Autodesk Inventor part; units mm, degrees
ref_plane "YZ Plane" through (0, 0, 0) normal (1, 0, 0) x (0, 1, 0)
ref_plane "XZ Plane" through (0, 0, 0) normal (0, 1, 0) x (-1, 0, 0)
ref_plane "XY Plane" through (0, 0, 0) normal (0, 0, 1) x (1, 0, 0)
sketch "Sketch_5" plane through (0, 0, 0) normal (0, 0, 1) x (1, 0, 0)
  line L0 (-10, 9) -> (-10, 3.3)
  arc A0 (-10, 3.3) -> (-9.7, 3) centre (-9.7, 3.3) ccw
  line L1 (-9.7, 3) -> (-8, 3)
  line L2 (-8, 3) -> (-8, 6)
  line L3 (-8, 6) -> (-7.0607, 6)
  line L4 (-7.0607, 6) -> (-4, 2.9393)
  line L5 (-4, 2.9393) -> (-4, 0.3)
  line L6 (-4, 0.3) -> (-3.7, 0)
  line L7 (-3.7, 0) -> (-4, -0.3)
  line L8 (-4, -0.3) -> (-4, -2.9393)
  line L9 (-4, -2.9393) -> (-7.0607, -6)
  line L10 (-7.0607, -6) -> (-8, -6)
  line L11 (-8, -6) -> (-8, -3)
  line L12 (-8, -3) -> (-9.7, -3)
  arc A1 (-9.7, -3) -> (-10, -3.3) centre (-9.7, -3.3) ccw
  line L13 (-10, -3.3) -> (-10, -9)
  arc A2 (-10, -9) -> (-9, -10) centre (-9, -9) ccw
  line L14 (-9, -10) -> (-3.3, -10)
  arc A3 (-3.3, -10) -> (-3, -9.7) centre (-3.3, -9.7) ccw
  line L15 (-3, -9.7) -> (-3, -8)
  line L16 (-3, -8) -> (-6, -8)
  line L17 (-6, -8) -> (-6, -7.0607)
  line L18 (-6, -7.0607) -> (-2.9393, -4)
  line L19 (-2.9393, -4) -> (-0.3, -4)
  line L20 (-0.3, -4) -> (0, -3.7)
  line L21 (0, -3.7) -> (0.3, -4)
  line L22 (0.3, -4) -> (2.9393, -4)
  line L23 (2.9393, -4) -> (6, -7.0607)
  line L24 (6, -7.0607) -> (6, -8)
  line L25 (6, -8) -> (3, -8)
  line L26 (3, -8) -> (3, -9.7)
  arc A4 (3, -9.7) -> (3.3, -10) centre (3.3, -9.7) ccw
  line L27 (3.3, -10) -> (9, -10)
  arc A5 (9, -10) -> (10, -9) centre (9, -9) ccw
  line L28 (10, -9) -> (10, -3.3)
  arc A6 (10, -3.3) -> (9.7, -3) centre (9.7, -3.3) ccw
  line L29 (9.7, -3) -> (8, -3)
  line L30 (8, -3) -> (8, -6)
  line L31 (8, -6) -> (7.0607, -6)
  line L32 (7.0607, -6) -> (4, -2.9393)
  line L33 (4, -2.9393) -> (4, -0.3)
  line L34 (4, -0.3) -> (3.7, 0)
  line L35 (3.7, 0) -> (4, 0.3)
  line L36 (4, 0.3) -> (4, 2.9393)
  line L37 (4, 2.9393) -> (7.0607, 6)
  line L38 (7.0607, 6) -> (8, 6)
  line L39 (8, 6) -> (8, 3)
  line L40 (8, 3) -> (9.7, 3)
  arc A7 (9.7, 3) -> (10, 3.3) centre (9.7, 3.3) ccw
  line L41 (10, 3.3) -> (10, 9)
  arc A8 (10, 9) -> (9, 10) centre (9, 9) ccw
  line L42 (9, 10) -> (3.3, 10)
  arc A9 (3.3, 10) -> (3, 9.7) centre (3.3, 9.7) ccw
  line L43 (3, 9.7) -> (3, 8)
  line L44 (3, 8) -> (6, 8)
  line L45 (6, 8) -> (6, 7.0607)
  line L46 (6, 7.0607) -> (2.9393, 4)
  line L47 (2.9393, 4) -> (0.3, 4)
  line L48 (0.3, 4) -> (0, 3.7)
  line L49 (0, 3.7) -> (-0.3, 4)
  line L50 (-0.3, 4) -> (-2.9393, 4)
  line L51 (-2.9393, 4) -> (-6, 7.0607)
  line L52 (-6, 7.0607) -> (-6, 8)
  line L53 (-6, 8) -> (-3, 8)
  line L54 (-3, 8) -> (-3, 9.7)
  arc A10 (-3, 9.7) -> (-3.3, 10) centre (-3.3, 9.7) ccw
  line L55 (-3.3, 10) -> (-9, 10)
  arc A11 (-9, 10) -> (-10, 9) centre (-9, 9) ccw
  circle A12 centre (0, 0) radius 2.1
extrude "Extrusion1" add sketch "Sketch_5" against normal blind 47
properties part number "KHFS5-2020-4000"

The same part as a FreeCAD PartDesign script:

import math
import FreeCAD as App
import Part
import Sketcher

V = App.Vector

doc = App.newDocument("Part")
params = doc.addObject("Spreadsheet::Sheet", "Params")
for row, (alias, value) in enumerate([
    ("sketch1_radius", "1 mm"),
    ("sketch1_diameter", "4.2 mm"),
    ("sketch1_radius2", "0.3 mm"),
    ("sketch1_width", "3 mm"),
    ("sketch1_width2", "1.7 mm"),
    ("pad1_length", "47 mm"),
], start=1):
    params.set(f"A{row}", alias)
    params.set(f"B{row}", "=" + value)
    params.setAlias(f"B{row}", alias)

body = doc.addObject("PartDesign::Body", "Body")

sketch1 = body.newObject("Sketcher::SketchObject", "Sketch")
sketch1.AttachmentSupport = (doc.getObject("XY_Plane"), [""])
sketch1.MapMode = "FlatFace"
sketch1.addGeometry([
    Part.ArcOfCircle(Part.Circle(V(-9, 9, 0), V(0, 0, 1), 1), math.radians(90), math.radians(180)),
    Part.LineSegment(V(-10, 9, 0), V(-10, 3.3, 0)),
    Part.ArcOfCircle(Part.Circle(V(-9.7, 3.3, 0), V(0, 0, 1), 0.3), math.radians(180), math.radians(270)),
    Part.LineSegment(V(-9.7, 3, 0), V(-8, 3, 0)),
    Part.LineSegment(V(-8, 3, 0), V(-8, 6, 0)),
    Part.LineSegment(V(-8, 6, 0), V(-7.06, 6, 0)),
    Part.LineSegment(V(-7.06, 6, 0), V(-4, 2.94, 0)),
    Part.LineSegment(V(-4, 2.94, 0), V(-4, 0.3, 0)),
    Part.LineSegment(V(-4, 0.3, 0), V(-3.7, 0, 0)),
    Part.LineSegment(V(-3.7, 0, 0), V(-4, -0.3, 0)),
    Part.LineSegment(V(-4, -0.3, 0), V(-4, -2.94, 0)),
    Part.LineSegment(V(-4, -2.94, 0), V(-7.06, -6, 0)),
    Part.LineSegment(V(-7.06, -6, 0), V(-8, -6, 0)),
    Part.LineSegment(V(-8, -6, 0), V(-8, -3, 0)),
    Part.LineSegment(V(-8, -3, 0), V(-9.7, -3, 0)),
    Part.ArcOfCircle(Part.Circle(V(-9.7, -3.3, 0), V(0, 0, 1), 0.3), math.radians(90), math.radians(180)),
    Part.LineSegment(V(-10, -3.3, 0), V(-10, -9, 0)),
    Part.ArcOfCircle(Part.Circle(V(-9, -9, 0), V(0, 0, 1), 1), math.radians(180), math.radians(270)),
    Part.LineSegment(V(-9, -10, 0), V(-3.3, -10, 0)),
    Part.ArcOfCircle(Part.Circle(V(-3.3, -9.7, 0), V(0, 0, 1), 0.3), math.radians(-90), math.radians(0)),
    Part.LineSegment(V(-3, -9.7, 0), V(-3, -8, 0)),
    Part.LineSegment(V(-3, -8, 0), V(-6, -8, 0)),
    Part.LineSegment(V(-6, -8, 0), V(-6, -7.06, 0)),
    Part.LineSegment(V(-6, -7.06, 0), V(-2.94, -4, 0)),
    Part.LineSegment(V(-2.94, -4, 0), V(-0.3, -4, 0)),
    Part.LineSegment(V(-0.3, -4, 0), V(0, -3.7, 0)),
    Part.LineSegment(V(0, -3.7, 0), V(0.3, -4, 0)),
    Part.LineSegment(V(0.3, -4, 0), V(2.94, -4, 0)),
    Part.LineSegment(V(2.94, -4, 0), V(6, -7.06, 0)),
    Part.LineSegment(V(6, -7.06, 0), V(6, -8, 0)),
    Part.LineSegment(V(6, -8, 0), V(3, -8, 0)),
    Part.LineSegment(V(3, -8, 0), V(3, -9.7, 0)),
    Part.ArcOfCircle(Part.Circle(V(3.3, -9.7, 0), V(0, 0, 1), 0.3), math.radians(180), math.radians(270)),
    Part.LineSegment(V(3.3, -10, 0), V(9, -10, 0)),
    Part.ArcOfCircle(Part.Circle(V(9, -9, 0), V(0, 0, 1), 1), math.radians(-90), math.radians(0)),
    Part.LineSegment(V(10, -9, 0), V(10, -3.3, 0)),
    Part.ArcOfCircle(Part.Circle(V(9.7, -3.3, 0), V(0, 0, 1), 0.3), math.radians(0), math.radians(90)),
    Part.LineSegment(V(9.7, -3, 0), V(8, -3, 0)),
    Part.LineSegment(V(8, -3, 0), V(8, -6, 0)),
    Part.LineSegment(V(8, -6, 0), V(7.06, -6, 0)),
    Part.LineSegment(V(7.06, -6, 0), V(4, -2.94, 0)),
    Part.LineSegment(V(4, -2.94, 0), V(4, -0.3, 0)),
    Part.LineSegment(V(4, -0.3, 0), V(3.7, 0, 0)),
    Part.LineSegment(V(3.7, 0, 0), V(4, 0.3, 0)),
    Part.LineSegment(V(4, 0.3, 0), V(4, 2.94, 0)),
    Part.LineSegment(V(4, 2.94, 0), V(7.06, 6, 0)),
    Part.LineSegment(V(7.06, 6, 0), V(8, 6, 0)),
    Part.LineSegment(V(8, 6, 0), V(8, 3, 0)),
    Part.LineSegment(V(8, 3, 0), V(9.7, 3, 0)),
    Part.ArcOfCircle(Part.Circle(V(9.7, 3.3, 0), V(0, 0, 1), 0.3), math.radians(-90), math.radians(0)),
    Part.LineSegment(V(10, 3.3, 0), V(10, 9, 0)),
    Part.ArcOfCircle(Part.Circle(V(9, 9, 0), V(0, 0, 1), 1), math.radians(0), math.radians(90)),
    Part.LineSegment(V(9, 10, 0), V(3.3, 10, 0)),
    Part.ArcOfCircle(Part.Circle(V(3.3, 9.7, 0), V(0, 0, 1), 0.3), math.radians(90), math.radians(180)),
    Part.LineSegment(V(3, 9.7, 0), V(3, 8, 0)),
    Part.LineSegment(V(3, 8, 0), V(6, 8, 0)),
    Part.LineSegment(V(6, 8, 0), V(6, 7.06, 0)),
    Part.LineSegment(V(6, 7.06, 0), V(2.94, 4, 0)),
    Part.LineSegment(V(2.94, 4, 0), V(0.3, 4, 0)),
    Part.LineSegment(V(0.3, 4, 0), V(0, 3.7, 0)),
    Part.LineSegment(V(0, 3.7, 0), V(-0.3, 4, 0)),
    Part.LineSegment(V(-0.3, 4, 0), V(-2.94, 4, 0)),
    Part.LineSegment(V(-2.94, 4, 0), V(-6, 7.06, 0)),
    Part.LineSegment(V(-6, 7.06, 0), V(-6, 8, 0)),
    Part.LineSegment(V(-6, 8, 0), V(-3, 8, 0)),
    Part.LineSegment(V(-3, 8, 0), V(-3, 9.7, 0)),
    Part.ArcOfCircle(Part.Circle(V(-3.3, 9.7, 0), V(0, 0, 1), 0.3), math.radians(0), math.radians(90)),
    Part.LineSegment(V(-3.3, 10, 0), V(-9, 10, 0)),
    Part.Circle(V(0, 0, 0), V(0, 0, 1), 2.1),
], False)
sketch1.addConstraint([
    Sketcher.Constraint("Tangent", 0, 2, 1, 1),
    Sketcher.Constraint("Tangent", 1, 2, 2, 1),
    Sketcher.Constraint("Tangent", 2, 2, 3, 1),
    Sketcher.Constraint("Coincident", 3, 2, 4, 1),
    Sketcher.Constraint("Coincident", 4, 2, 5, 1),
    Sketcher.Constraint("Coincident", 5, 2, 6, 1),
    Sketcher.Constraint("Coincident", 6, 2, 7, 1),
    Sketcher.Constraint("Coincident", 7, 2, 8, 1),
    Sketcher.Constraint("Coincident", 8, 2, 9, 1),
    Sketcher.Constraint("Coincident", 9, 2, 10, 1),
    Sketcher.Constraint("Coincident", 10, 2, 11, 1),
    Sketcher.Constraint("Coincident", 11, 2, 12, 1),
    Sketcher.Constraint("Coincident", 12, 2, 13, 1),
    Sketcher.Constraint("Coincident", 13, 2, 14, 1),
    Sketcher.Constraint("Tangent", 14, 2, 15, 1),
    Sketcher.Constraint("Tangent", 15, 2, 16, 1),
    Sketcher.Constraint("Tangent", 16, 2, 17, 1),
    Sketcher.Constraint("Tangent", 17, 2, 18, 1),
    Sketcher.Constraint("Tangent", 18, 2, 19, 1),
    Sketcher.Constraint("Tangent", 19, 2, 20, 1),
    Sketcher.Constraint("Coincident", 20, 2, 21, 1),
    Sketcher.Constraint("Coincident", 21, 2, 22, 1),
    Sketcher.Constraint("Coincident", 22, 2, 23, 1),
    Sketcher.Constraint("Coincident", 23, 2, 24, 1),
    Sketcher.Constraint("Coincident", 24, 2, 25, 1),
    Sketcher.Constraint("Coincident", 25, 2, 26, 1),
    Sketcher.Constraint("Coincident", 26, 2, 27, 1),
    Sketcher.Constraint("Coincident", 27, 2, 28, 1),
    Sketcher.Constraint("Coincident", 28, 2, 29, 1),
    Sketcher.Constraint("Coincident", 29, 2, 30, 1),
    Sketcher.Constraint("Coincident", 30, 2, 31, 1),
    Sketcher.Constraint("Tangent", 31, 2, 32, 1),
    Sketcher.Constraint("Tangent", 32, 2, 33, 1),
    Sketcher.Constraint("Tangent", 33, 2, 34, 1),
    Sketcher.Constraint("Tangent", 34, 2, 35, 1),
    Sketcher.Constraint("Tangent", 35, 2, 36, 1),
    Sketcher.Constraint("Tangent", 36, 2, 37, 1),
    Sketcher.Constraint("Coincident", 37, 2, 38, 1),
    Sketcher.Constraint("Coincident", 38, 2, 39, 1),
    Sketcher.Constraint("Coincident", 39, 2, 40, 1),
    Sketcher.Constraint("Coincident", 40, 2, 41, 1),
    Sketcher.Constraint("Coincident", 41, 2, 42, 1),
    Sketcher.Constraint("Coincident", 42, 2, 43, 1),
    Sketcher.Constraint("Coincident", 43, 2, 44, 1),
    Sketcher.Constraint("Coincident", 44, 2, 45, 1),
    Sketcher.Constraint("Coincident", 45, 2, 46, 1),
    Sketcher.Constraint("Coincident", 46, 2, 47, 1),
    Sketcher.Constraint("Coincident", 47, 2, 48, 1),
    Sketcher.Constraint("Tangent", 48, 2, 49, 1),
    Sketcher.Constraint("Tangent", 49, 2, 50, 1),
    Sketcher.Constraint("Tangent", 50, 2, 51, 1),
    Sketcher.Constraint("Tangent", 51, 2, 52, 1),
    Sketcher.Constraint("Tangent", 52, 2, 53, 1),
    Sketcher.Constraint("Tangent", 53, 2, 54, 1),
    Sketcher.Constraint("Coincident", 54, 2, 55, 1),
    Sketcher.Constraint("Coincident", 55, 2, 56, 1),
    Sketcher.Constraint("Coincident", 56, 2, 57, 1),
    Sketcher.Constraint("Coincident", 57, 2, 58, 1),
    Sketcher.Constraint("Coincident", 58, 2, 59, 1),
    Sketcher.Constraint("Coincident", 59, 2, 60, 1),
    Sketcher.Constraint("Coincident", 60, 2, 61, 1),
    Sketcher.Constraint("Coincident", 61, 2, 62, 1),
    Sketcher.Constraint("Coincident", 62, 2, 63, 1),
    Sketcher.Constraint("Coincident", 63, 2, 64, 1),
    Sketcher.Constraint("Coincident", 64, 2, 65, 1),
    Sketcher.Constraint("Tangent", 65, 2, 66, 1),
    Sketcher.Constraint("Tangent", 66, 2, 67, 1),
    Sketcher.Constraint("Tangent", 67, 2, 0, 1),
    Sketcher.Constraint("Vertical", 1),
    Sketcher.Constraint("Horizontal", 3),
    Sketcher.Constraint("Vertical", 4),
    Sketcher.Constraint("Horizontal", 5),
    Sketcher.Constraint("Vertical", 7),
    Sketcher.Constraint("Vertical", 10),
    Sketcher.Constraint("Horizontal", 12),
    Sketcher.Constraint("Vertical", 13),
    Sketcher.Constraint("Horizontal", 14),
    Sketcher.Constraint("Vertical", 16),
    Sketcher.Constraint("Horizontal", 18),
    Sketcher.Constraint("Vertical", 20),
    Sketcher.Constraint("Horizontal", 21),
    Sketcher.Constraint("Vertical", 22),
    Sketcher.Constraint("Horizontal", 24),
    Sketcher.Constraint("Horizontal", 27),
    Sketcher.Constraint("Vertical", 29),
    Sketcher.Constraint("Horizontal", 30),
    Sketcher.Constraint("Vertical", 31),
    Sketcher.Constraint("Horizontal", 33),
    Sketcher.Constraint("Vertical", 35),
    Sketcher.Constraint("Horizontal", 37),
    Sketcher.Constraint("Vertical", 38),
    Sketcher.Constraint("Horizontal", 39),
    Sketcher.Constraint("Vertical", 41),
    Sketcher.Constraint("Vertical", 44),
    Sketcher.Constraint("Horizontal", 46),
    Sketcher.Constraint("Vertical", 47),
    Sketcher.Constraint("Horizontal", 48),
    Sketcher.Constraint("Vertical", 50),
    Sketcher.Constraint("Horizontal", 52),
    Sketcher.Constraint("Vertical", 54),
    Sketcher.Constraint("Horizontal", 55),
    Sketcher.Constraint("Vertical", 56),
    Sketcher.Constraint("Horizontal", 58),
    Sketcher.Constraint("Horizontal", 61),
    Sketcher.Constraint("Vertical", 63),
    Sketcher.Constraint("Horizontal", 64),
    Sketcher.Constraint("Vertical", 65),
    Sketcher.Constraint("Horizontal", 67),
    Sketcher.Constraint("Coincident", 68, 3, -1, 1),
    Sketcher.Constraint("Equal", 2, 15),
    Sketcher.Constraint("Equal", 0, 17),
    Sketcher.Constraint("Equal", 15, 19),
    Sketcher.Constraint("Equal", 19, 32),
    Sketcher.Constraint("Equal", 17, 34),
    Sketcher.Constraint("Equal", 32, 36),
    Sketcher.Constraint("Equal", 36, 49),
    Sketcher.Constraint("Equal", 34, 51),
    Sketcher.Constraint("Equal", 49, 53),
    Sketcher.Constraint("Equal", 53, 66),
    Sketcher.Constraint("Symmetric", 0, 3, 34, 3, -1, 1),
    Sketcher.Constraint("Symmetric", 15, 3, 49, 3, -1, 1),
    Sketcher.Constraint("Symmetric", 19, 3, 53, 3, -1, 1),
    Sketcher.Constraint("Symmetric", 3, 2, 37, 2, -1, 1),
    Sketcher.Constraint("Symmetric", 5, 2, 39, 2, -1, 1),
    Sketcher.Constraint("Symmetric", 6, 2, 40, 2, -1, 1),
    Sketcher.Constraint("Symmetric", 8, 2, 42, 2, -1, 1),
    Sketcher.Constraint("Symmetric", 9, 2, 43, 2, -1, 1),
    Sketcher.Constraint("Symmetric", 11, 2, 45, 2, -1, 1),
    Sketcher.Constraint("Symmetric", 21, 2, 55, 2, -1, 1),
    Sketcher.Constraint("Symmetric", 23, 2, 57, 2, -1, 1),
    Sketcher.Constraint("Symmetric", 25, 2, 59, 2, -1, 1),
    Sketcher.Constraint("Symmetric", 26, 2, 60, 2, -1, 1),
    Sketcher.Constraint("Symmetric", 28, 2, 62, 2, -1, 1),
    Sketcher.Constraint("Symmetric", 30, 2, 64, 2, -1, 1),
    Sketcher.Constraint("Symmetric", 19, 3, 32, 3, -2),
    Sketcher.Constraint("Symmetric", 15, 3, 36, 3, -2),
    Sketcher.Constraint("Symmetric", 24, 2, 26, 2, -2),
    Sketcher.Constraint("Symmetric", 22, 2, 28, 2, -2),
    Sketcher.Constraint("Symmetric", 12, 2, 38, 2, -2),
    Sketcher.Constraint("Symmetric", 10, 2, 40, 2, -2),
    Sketcher.Constraint("PointOnObject", 8, 2, -1),
    Sketcher.Constraint("PointOnObject", 25, 2, -2),
    Sketcher.Constraint("Parallel", 6, 8),
    Sketcher.Constraint("Perpendicular", 8, 9),
    Sketcher.Constraint("Parallel", 9, 11),
    Sketcher.Constraint("Parallel", 11, 23),
    Sketcher.Constraint("Parallel", 23, 25),
    Sketcher.Constraint("Perpendicular", 25, 26),
    Sketcher.Constraint("Parallel", 26, 28),
    Sketcher.Constraint("Parallel", 40, 42),
    Sketcher.Constraint("Parallel", 43, 45),
    Sketcher.Constraint("Parallel", 45, 57),
    Sketcher.Constraint("Parallel", 57, 59),
    Sketcher.Constraint("Parallel", 60, 62),
    Sketcher.Constraint("Horizontal", 21, 2, 29, 2),
    Sketcher.Constraint("Vertical", 38, 2, 46, 2),
    Sketcher.Constraint("Equal", 67, 1),
    Sketcher.Constraint("Equal", 64, 4),
    Sketcher.Constraint("Equal", 61, 7),
    Sketcher.Constraint("Equal", 48, 20),
    Sketcher.Constraint("Equal", 46, 22),
    Sketcher.Constraint("Equal", 11, 23),
    Sketcher.Constraint("Equal", 9, 25),
    Sketcher.Constraint("Radius", 0, 1.0),
    Sketcher.Constraint("Diameter", 68, 4.2),
    Sketcher.Constraint("Radius", 2, 0.3),
    Sketcher.Constraint("DistanceX", 21, 2, 21, 1, 3.0),
    Sketcher.Constraint("DistanceX", 3, 1, 3, 2, 1.7),
    Sketcher.Constraint("DistanceX", 18, 1, 18, 2, 5.7),
    Sketcher.Constraint("DistanceX", 0, 3, -1, 1, 9.0),
    Sketcher.Constraint("DistanceX", 6, 2, -1, 1, 4.0),
    Sketcher.Constraint("DistanceY", -1, 1, 7, 2, 0.3),
    Sketcher.Constraint("DistanceX", 5, 1, 5, 2, 0.9393),
])
sketch1.setExpression("Constraints[163]", "Params.sketch1_radius")
sketch1.setExpression("Constraints[164]", "Params.sketch1_diameter")
sketch1.setExpression("Constraints[165]", "Params.sketch1_radius2")
sketch1.setExpression("Constraints[166]", "Params.sketch1_width")
sketch1.setExpression("Constraints[167]", "Params.sketch1_width2")
pad1 = body.newObject("PartDesign::Pad", "Pad")
pad1.Profile = sketch1
pad1.setExpression("Length", "Params.pad1_length")
pad1.Reversed = True

doc.recompute()
